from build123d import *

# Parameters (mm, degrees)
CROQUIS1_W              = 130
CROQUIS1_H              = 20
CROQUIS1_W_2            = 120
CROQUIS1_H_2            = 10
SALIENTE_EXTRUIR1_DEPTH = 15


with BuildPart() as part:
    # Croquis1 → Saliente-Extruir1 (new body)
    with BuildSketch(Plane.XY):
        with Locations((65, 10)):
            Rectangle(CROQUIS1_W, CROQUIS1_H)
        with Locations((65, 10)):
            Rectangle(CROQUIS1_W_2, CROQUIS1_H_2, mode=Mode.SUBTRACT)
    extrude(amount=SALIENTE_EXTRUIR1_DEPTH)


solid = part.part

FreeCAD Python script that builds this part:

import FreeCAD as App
import Part
import Sketcher
from FreeCAD import Vector

doc = App.newDocument("Part")
body = doc.addObject("PartDesign::Body", "Body")

# Sketch on XY plane
sketch1 = body.newObject("Sketcher::SketchObject", "Sketch")
sketch1.AttachmentSupport = (doc.getObject("XY_Plane"), [""])
sketch1.MapMode = "FlatFace"
sketch1.addGeometry([
    Part.LineSegment(Vector(0, 20, 0), Vector(0, 0, 0)),  # 0
    Part.LineSegment(Vector(0, 0, 0), Vector(130, 0, 0)),  # 1
    Part.LineSegment(Vector(130, 0, 0), Vector(130, 20, 0)),  # 2
    Part.LineSegment(Vector(130, 20, 0), Vector(0, 20, 0)),  # 3
    Part.LineSegment(Vector(125, 5, 0), Vector(5, 5, 0)),  # 4
    Part.LineSegment(Vector(5, 5, 0), Vector(5, 15, 0)),  # 5
    Part.LineSegment(Vector(5, 15, 0), Vector(125, 15, 0)),  # 6
    Part.LineSegment(Vector(125, 15, 0), Vector(125, 5, 0)),  # 7
], False)
sketch1.addConstraint([
    Sketcher.Constraint("Coincident", 0, 2, 1, 1),
    Sketcher.Constraint("Coincident", 1, 2, 2, 1),
    Sketcher.Constraint("Coincident", 2, 2, 3, 1),
    Sketcher.Constraint("Coincident", 3, 2, 0, 1),
    Sketcher.Constraint("Coincident", 4, 2, 5, 1),
    Sketcher.Constraint("Coincident", 5, 2, 6, 1),
    Sketcher.Constraint("Coincident", 6, 2, 7, 1),
    Sketcher.Constraint("Coincident", 7, 2, 4, 1),
    Sketcher.Constraint("Vertical", 0),
    Sketcher.Constraint("Horizontal", 1),
    Sketcher.Constraint("Vertical", 2),
    Sketcher.Constraint("Horizontal", 3),
    Sketcher.Constraint("Horizontal", 4),
    Sketcher.Constraint("Vertical", 5),
    Sketcher.Constraint("Horizontal", 6),
    Sketcher.Constraint("Vertical", 7),
    Sketcher.Constraint("Coincident", 0, 2, -1, 1),
    Sketcher.Constraint("DistanceX", 1, 1, 1, 2, 130.0),
    Sketcher.Constraint("DistanceX", 4, 2, 4, 1, 120.0),
    Sketcher.Constraint("DistanceY", 0, 2, 0, 1, 20.0),
    Sketcher.Constraint("DistanceY", 5, 1, 5, 2, 10.0),
    Sketcher.Constraint("DistanceX", -1, 1, 4, 2, 5.0),
    Sketcher.Constraint("DistanceY", -1, 1, 4, 2, 5.0),
])
pad1 = body.newObject("PartDesign::Pad", "Pad")
pad1.Profile = sketch1
pad1.Length = 15

doc.recompute()
